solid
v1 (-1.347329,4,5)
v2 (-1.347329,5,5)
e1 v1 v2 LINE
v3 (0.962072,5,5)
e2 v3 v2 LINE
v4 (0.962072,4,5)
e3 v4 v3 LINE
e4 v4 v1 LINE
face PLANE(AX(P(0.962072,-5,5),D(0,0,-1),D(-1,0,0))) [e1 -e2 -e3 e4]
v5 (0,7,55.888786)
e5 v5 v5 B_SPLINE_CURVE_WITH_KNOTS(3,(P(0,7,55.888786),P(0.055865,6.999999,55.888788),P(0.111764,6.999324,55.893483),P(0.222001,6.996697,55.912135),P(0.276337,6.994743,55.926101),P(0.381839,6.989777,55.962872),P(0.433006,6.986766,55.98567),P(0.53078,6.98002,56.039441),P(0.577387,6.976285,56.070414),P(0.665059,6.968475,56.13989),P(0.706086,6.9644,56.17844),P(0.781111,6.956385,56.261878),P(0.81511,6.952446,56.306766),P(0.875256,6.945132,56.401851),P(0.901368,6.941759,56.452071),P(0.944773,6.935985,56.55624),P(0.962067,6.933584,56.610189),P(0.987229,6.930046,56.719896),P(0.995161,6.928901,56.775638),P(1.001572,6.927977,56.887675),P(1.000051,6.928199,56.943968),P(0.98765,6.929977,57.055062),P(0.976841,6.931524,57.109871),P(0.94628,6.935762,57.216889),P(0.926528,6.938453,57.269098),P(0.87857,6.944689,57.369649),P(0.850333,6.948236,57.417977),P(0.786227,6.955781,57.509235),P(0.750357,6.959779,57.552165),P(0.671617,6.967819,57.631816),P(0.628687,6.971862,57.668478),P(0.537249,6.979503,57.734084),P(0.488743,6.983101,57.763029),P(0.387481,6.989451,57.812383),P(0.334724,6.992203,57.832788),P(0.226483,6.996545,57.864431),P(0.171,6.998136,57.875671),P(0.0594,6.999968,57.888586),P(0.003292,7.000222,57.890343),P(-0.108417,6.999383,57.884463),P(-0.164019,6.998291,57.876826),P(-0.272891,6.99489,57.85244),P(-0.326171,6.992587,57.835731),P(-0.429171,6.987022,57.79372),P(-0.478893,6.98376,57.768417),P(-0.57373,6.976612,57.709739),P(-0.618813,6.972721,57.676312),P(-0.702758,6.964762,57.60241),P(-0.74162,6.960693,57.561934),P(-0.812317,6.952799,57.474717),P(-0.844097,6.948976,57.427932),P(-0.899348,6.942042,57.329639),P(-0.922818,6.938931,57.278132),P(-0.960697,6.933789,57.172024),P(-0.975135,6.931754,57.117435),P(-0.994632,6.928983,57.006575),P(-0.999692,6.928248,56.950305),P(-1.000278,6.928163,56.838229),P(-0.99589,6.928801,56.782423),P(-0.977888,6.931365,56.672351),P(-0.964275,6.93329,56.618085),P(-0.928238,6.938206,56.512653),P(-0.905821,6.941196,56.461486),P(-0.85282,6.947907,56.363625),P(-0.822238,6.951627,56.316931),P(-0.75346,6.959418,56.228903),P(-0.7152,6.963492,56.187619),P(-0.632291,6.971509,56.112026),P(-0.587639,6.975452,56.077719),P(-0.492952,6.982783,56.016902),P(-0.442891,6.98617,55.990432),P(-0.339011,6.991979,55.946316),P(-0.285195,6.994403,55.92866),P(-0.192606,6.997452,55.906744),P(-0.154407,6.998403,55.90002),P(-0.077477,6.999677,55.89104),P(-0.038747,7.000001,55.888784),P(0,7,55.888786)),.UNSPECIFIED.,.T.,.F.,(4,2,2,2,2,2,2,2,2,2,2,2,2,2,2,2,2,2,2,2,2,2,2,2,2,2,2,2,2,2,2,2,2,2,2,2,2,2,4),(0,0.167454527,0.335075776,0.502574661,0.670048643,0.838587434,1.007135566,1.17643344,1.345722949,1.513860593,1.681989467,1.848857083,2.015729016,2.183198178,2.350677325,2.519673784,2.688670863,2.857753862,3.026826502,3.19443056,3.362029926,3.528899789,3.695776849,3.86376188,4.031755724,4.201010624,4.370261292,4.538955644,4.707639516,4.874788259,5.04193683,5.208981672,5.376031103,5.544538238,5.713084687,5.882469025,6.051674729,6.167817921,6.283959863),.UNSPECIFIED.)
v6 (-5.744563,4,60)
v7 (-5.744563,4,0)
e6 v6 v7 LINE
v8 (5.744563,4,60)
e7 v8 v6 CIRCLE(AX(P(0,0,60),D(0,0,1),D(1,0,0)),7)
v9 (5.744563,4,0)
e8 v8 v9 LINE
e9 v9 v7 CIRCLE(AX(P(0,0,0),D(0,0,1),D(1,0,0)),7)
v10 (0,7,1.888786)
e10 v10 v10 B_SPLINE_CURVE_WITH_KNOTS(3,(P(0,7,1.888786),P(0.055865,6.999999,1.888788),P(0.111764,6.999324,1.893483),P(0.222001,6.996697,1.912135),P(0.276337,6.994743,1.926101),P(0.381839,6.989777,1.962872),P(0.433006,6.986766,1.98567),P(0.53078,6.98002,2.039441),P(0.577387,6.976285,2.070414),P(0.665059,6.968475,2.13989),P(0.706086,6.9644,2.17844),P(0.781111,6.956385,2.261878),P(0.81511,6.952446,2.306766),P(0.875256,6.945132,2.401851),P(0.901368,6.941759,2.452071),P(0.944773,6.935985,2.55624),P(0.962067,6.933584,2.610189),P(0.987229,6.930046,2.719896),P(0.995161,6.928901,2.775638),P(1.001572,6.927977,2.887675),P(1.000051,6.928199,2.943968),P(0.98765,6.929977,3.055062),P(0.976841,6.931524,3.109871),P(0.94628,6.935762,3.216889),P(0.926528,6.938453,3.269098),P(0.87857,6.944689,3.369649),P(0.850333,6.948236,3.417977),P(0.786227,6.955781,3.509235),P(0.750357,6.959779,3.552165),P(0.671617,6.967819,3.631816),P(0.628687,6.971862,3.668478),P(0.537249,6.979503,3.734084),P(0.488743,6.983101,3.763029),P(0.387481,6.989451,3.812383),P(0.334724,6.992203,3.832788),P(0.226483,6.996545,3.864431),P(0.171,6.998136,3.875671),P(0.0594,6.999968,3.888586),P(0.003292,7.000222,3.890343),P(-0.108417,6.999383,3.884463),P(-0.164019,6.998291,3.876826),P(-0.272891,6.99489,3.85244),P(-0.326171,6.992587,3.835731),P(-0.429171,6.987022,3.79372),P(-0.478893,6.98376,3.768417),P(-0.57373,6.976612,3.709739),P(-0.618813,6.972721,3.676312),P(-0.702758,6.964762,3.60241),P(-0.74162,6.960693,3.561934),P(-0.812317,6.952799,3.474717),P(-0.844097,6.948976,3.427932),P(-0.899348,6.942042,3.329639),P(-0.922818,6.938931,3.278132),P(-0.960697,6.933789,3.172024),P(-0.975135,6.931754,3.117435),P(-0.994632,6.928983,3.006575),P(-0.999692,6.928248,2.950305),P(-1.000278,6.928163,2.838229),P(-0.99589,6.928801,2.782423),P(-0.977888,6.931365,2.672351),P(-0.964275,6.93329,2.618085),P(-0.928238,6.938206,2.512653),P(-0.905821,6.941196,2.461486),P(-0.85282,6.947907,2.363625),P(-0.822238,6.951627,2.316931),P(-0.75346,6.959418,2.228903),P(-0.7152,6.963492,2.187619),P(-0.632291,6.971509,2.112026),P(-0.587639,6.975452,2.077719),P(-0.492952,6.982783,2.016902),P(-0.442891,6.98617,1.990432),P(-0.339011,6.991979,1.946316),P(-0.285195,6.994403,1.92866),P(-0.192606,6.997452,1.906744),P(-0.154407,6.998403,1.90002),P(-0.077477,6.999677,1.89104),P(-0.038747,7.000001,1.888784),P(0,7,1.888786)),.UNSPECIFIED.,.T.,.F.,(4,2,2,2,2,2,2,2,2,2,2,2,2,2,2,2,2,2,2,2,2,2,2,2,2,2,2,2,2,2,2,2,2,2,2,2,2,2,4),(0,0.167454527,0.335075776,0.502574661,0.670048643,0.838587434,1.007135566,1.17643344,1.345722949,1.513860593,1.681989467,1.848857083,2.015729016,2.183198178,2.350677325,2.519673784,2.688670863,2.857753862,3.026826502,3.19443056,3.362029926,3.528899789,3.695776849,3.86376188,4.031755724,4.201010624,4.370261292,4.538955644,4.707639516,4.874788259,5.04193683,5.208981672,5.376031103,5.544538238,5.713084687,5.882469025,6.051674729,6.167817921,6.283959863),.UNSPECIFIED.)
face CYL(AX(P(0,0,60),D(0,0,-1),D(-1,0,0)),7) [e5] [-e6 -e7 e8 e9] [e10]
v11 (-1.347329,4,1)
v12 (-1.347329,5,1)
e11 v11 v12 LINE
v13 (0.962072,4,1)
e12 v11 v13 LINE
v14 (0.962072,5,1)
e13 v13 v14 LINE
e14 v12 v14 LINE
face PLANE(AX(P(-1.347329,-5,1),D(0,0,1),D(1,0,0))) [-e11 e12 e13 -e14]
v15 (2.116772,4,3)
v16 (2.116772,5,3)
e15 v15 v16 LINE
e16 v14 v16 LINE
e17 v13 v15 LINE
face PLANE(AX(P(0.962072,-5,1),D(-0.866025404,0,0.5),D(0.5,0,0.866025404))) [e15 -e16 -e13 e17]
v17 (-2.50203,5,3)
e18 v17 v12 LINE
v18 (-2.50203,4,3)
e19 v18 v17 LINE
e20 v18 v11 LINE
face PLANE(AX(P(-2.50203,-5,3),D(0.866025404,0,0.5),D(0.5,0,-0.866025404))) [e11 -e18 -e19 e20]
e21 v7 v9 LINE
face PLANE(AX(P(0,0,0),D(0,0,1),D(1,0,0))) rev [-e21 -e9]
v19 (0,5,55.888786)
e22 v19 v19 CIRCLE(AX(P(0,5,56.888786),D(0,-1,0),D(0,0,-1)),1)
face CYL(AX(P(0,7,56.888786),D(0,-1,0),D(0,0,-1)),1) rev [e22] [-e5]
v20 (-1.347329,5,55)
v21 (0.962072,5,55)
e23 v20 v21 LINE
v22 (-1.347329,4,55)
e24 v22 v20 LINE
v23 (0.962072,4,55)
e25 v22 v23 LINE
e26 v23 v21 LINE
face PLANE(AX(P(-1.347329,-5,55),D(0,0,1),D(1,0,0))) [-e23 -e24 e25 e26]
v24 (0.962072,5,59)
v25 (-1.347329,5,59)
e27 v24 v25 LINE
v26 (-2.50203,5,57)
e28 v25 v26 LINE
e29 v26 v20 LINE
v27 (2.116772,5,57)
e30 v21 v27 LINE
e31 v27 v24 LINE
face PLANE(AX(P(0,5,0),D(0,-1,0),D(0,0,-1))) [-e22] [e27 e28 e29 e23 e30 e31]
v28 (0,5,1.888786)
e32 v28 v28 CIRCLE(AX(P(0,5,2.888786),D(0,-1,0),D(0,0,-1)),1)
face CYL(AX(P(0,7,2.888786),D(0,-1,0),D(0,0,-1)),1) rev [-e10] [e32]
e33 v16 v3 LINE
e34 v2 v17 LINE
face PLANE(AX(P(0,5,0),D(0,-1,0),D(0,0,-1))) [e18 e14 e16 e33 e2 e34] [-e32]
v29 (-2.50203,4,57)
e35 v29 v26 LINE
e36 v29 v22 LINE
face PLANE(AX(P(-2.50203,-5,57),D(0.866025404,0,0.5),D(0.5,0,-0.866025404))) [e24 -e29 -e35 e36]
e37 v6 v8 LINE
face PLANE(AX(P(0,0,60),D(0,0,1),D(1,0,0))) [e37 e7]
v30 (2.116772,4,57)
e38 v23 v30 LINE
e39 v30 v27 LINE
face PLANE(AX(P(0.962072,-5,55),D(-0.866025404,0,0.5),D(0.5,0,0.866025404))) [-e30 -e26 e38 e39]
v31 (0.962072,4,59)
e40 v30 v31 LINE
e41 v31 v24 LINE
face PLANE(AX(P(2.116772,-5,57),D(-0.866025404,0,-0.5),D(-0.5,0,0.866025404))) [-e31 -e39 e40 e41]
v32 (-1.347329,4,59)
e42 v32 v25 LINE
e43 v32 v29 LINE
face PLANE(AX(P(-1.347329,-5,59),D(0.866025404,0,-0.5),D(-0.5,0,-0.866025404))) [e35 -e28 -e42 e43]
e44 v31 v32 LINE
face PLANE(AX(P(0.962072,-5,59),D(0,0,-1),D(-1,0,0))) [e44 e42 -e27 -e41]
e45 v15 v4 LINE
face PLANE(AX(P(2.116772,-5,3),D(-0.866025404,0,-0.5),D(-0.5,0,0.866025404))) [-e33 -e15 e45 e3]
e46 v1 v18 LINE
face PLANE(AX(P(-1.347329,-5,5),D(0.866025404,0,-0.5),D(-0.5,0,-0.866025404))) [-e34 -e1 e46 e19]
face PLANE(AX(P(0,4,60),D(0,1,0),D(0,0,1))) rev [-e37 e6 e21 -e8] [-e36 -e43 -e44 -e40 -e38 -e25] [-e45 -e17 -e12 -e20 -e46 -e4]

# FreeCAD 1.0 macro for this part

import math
import FreeCAD as App
import Part
import Sketcher

V = App.Vector
Q = App.Units.Quantity

doc = App.newDocument("Part")
body = doc.addObject("PartDesign::Body", "Body")

# Sketch on XY plane
sketch1 = body.newObject("Sketcher::SketchObject", "Sketch")
sketch1.AttachmentSupport = (doc.getObject("XY_Plane"), [""])
sketch1.MapMode = "FlatFace"
sketch1.addGeometry([
    Part.ArcOfCircle(Part.Circle(V(0, 0, 0), V(0, 0, 1), 7), math.radians(34.849905), math.radians(145.150095)),
    Part.LineSegment(V(-5.744563, 4, 0), V(5.744563, 4, 0)),
], False)
sketch1.addConstraint([
    Sketcher.Constraint("Coincident", 0, 1, 1, 2),
    Sketcher.Constraint("Coincident", 1, 1, 0, 2),
    Sketcher.Constraint("Horizontal", 1),
    Sketcher.Constraint("Coincident", 0, 3, -1, 1),
    Sketcher.Constraint("Radius", 0, 7.0),
    Sketcher.Constraint("DistanceY", -1, 1, 0, 1, 4.0),
])
pad1 = body.newObject("PartDesign::Pad", "Pad")
pad1.Profile = sketch1
pad1.Length = 60

# Sketch on XZ plane
sketch2 = body.newObject("Sketcher::SketchObject", "Sketch001")
sketch2.AttachmentSupport = (doc.getObject("XZ_Plane"), [""])
sketch2.MapMode = "FlatFace"
sketch2.AttachmentOffset = App.Placement(V(0, 0, -4), App.Rotation())
sketch2.addGeometry([
    Part.LineSegment(V(-2.50203, 57, 0), V(-1.347329, 55, 0)),  # 0
    Part.LineSegment(V(-1.347329, 55, 0), V(0.962072, 55, 0)),  # 1
    Part.LineSegment(V(0.962072, 55, 0), V(2.116772, 57, 0)),  # 2
    Part.LineSegment(V(2.116772, 57, 0), V(0.962072, 59, 0)),  # 3
    Part.LineSegment(V(0.962072, 59, 0), V(-1.347329, 59, 0)),  # 4
    Part.LineSegment(V(-1.347329, 59, 0), V(-2.50203, 57, 0)),  # 5
    Part.LineSegment(V(-2.50203, 3, 0), V(-1.347329, 1, 0)),  # 6
    Part.LineSegment(V(-1.347329, 1, 0), V(0.962072, 1, 0)),  # 7
    Part.LineSegment(V(0.962072, 1, 0), V(2.116772, 3, 0)),  # 8
    Part.LineSegment(V(2.116772, 3, 0), V(0.962072, 5, 0)),  # 9
    Part.LineSegment(V(0.962072, 5, 0), V(-1.347329, 5, 0)),  # 10
    Part.LineSegment(V(-1.347329, 5, 0), V(-2.50203, 3, 0)),  # 11
], False)
sketch2.addConstraint([
    Sketcher.Constraint("Coincident", 0, 2, 1, 1),
    Sketcher.Constraint("Coincident", 1, 2, 2, 1),
    Sketcher.Constraint("Coincident", 2, 2, 3, 1),
    Sketcher.Constraint("Coincident", 3, 2, 4, 1),
    Sketcher.Constraint("Coincident", 4, 2, 5, 1),
    Sketcher.Constraint("Coincident", 5, 2, 0, 1),
    Sketcher.Constraint("Coincident", 6, 2, 7, 1),
    Sketcher.Constraint("Coincident", 7, 2, 8, 1),
    Sketcher.Constraint("Coincident", 8, 2, 9, 1),
    Sketcher.Constraint("Coincident", 9, 2, 10, 1),
    Sketcher.Constraint("Coincident", 10, 2, 11, 1),
    Sketcher.Constraint("Coincident", 11, 2, 6, 1),
    Sketcher.Constraint("Horizontal", 1),
    Sketcher.Constraint("Horizontal", 4),
    Sketcher.Constraint("Horizontal", 7),
    Sketcher.Constraint("Horizontal", 10),
    Sketcher.Constraint("Parallel", 0, 3),
    Sketcher.Constraint("Parallel", 2, 5),
    Sketcher.Constraint("Parallel", 3, 6),
    Sketcher.Constraint("Parallel", 5, 8),
    Sketcher.Constraint("Parallel", 6, 9),
    Sketcher.Constraint("Parallel", 8, 11),
    Sketcher.Constraint("Horizontal", 2, 2, 5, 2),
    Sketcher.Constraint("Horizontal", 8, 2, 11, 2),
    Sketcher.Constraint("Vertical", 1, 2, 3, 2),
    Sketcher.Constraint("Vertical", 0, 2, 4, 2),
    Sketcher.Constraint("Vertical", 4, 2, 6, 2),
    Sketcher.Constraint("Vertical", 3, 2, 7, 2),
    Sketcher.Constraint("Vertical", 2, 2, 8, 2),
    Sketcher.Constraint("Vertical", 7, 2, 9, 2),
    Sketcher.Constraint("Angle", 0, Q("-60 deg")),
    Sketcher.Constraint("DistanceY", -1, 1, 0, 2, 55.0),
    Sketcher.Constraint("DistanceY", -1, 1, 2, 2, 57.0),
    Sketcher.Constraint("DistanceY", -1, 1, 6, 2, 1.0),
    Sketcher.Constraint("DistanceX", 1, 1, 1, 2, 2.309401),
    Sketcher.Constraint("DistanceX", 0, 2, -1, 1, 1.347329),
])
pocket1 = body.newObject("PartDesign::Pocket", "Pocket")
pocket1.Profile = sketch2
pocket1.Type = "TwoLengths"
pocket1.Length = 9
pocket1.Length2 = 1
pocket1.Reversed = True

# Sketch on XZ plane
sketch3 = body.newObject("Sketcher::SketchObject", "Sketch002")
sketch3.AttachmentSupport = (doc.getObject("XZ_Plane"), [""])
sketch3.MapMode = "FlatFace"
sketch3.AttachmentOffset = App.Placement(V(0, 0, -5), App.Rotation())
sketch3.addGeometry([
    Part.Circle(V(0, 2.888786, 0), V(0, 0, 1), 1),
    Part.Circle(V(0, 56.888786, 0), V(0, 0, 1), 1),
], False)
sketch3.addConstraint([
    Sketcher.Constraint("Equal", 0, 1),
    Sketcher.Constraint("PointOnObject", 0, 3, -2),
    Sketcher.Constraint("PointOnObject", 1, 3, -2),
    Sketcher.Constraint("Diameter", 0, 2.0),
    Sketcher.Constraint("DistanceY", 0, 3, 1, 3, 54.0),
    Sketcher.Constraint("DistanceY", -1, 1, 0, 3, 2.888786),
])
pocket2 = body.newObject("PartDesign::Pocket", "Pocket001")
pocket2.Profile = sketch3
pocket2.Type = "ThroughAll"
pocket2.Midplane = True

doc.recompute()
